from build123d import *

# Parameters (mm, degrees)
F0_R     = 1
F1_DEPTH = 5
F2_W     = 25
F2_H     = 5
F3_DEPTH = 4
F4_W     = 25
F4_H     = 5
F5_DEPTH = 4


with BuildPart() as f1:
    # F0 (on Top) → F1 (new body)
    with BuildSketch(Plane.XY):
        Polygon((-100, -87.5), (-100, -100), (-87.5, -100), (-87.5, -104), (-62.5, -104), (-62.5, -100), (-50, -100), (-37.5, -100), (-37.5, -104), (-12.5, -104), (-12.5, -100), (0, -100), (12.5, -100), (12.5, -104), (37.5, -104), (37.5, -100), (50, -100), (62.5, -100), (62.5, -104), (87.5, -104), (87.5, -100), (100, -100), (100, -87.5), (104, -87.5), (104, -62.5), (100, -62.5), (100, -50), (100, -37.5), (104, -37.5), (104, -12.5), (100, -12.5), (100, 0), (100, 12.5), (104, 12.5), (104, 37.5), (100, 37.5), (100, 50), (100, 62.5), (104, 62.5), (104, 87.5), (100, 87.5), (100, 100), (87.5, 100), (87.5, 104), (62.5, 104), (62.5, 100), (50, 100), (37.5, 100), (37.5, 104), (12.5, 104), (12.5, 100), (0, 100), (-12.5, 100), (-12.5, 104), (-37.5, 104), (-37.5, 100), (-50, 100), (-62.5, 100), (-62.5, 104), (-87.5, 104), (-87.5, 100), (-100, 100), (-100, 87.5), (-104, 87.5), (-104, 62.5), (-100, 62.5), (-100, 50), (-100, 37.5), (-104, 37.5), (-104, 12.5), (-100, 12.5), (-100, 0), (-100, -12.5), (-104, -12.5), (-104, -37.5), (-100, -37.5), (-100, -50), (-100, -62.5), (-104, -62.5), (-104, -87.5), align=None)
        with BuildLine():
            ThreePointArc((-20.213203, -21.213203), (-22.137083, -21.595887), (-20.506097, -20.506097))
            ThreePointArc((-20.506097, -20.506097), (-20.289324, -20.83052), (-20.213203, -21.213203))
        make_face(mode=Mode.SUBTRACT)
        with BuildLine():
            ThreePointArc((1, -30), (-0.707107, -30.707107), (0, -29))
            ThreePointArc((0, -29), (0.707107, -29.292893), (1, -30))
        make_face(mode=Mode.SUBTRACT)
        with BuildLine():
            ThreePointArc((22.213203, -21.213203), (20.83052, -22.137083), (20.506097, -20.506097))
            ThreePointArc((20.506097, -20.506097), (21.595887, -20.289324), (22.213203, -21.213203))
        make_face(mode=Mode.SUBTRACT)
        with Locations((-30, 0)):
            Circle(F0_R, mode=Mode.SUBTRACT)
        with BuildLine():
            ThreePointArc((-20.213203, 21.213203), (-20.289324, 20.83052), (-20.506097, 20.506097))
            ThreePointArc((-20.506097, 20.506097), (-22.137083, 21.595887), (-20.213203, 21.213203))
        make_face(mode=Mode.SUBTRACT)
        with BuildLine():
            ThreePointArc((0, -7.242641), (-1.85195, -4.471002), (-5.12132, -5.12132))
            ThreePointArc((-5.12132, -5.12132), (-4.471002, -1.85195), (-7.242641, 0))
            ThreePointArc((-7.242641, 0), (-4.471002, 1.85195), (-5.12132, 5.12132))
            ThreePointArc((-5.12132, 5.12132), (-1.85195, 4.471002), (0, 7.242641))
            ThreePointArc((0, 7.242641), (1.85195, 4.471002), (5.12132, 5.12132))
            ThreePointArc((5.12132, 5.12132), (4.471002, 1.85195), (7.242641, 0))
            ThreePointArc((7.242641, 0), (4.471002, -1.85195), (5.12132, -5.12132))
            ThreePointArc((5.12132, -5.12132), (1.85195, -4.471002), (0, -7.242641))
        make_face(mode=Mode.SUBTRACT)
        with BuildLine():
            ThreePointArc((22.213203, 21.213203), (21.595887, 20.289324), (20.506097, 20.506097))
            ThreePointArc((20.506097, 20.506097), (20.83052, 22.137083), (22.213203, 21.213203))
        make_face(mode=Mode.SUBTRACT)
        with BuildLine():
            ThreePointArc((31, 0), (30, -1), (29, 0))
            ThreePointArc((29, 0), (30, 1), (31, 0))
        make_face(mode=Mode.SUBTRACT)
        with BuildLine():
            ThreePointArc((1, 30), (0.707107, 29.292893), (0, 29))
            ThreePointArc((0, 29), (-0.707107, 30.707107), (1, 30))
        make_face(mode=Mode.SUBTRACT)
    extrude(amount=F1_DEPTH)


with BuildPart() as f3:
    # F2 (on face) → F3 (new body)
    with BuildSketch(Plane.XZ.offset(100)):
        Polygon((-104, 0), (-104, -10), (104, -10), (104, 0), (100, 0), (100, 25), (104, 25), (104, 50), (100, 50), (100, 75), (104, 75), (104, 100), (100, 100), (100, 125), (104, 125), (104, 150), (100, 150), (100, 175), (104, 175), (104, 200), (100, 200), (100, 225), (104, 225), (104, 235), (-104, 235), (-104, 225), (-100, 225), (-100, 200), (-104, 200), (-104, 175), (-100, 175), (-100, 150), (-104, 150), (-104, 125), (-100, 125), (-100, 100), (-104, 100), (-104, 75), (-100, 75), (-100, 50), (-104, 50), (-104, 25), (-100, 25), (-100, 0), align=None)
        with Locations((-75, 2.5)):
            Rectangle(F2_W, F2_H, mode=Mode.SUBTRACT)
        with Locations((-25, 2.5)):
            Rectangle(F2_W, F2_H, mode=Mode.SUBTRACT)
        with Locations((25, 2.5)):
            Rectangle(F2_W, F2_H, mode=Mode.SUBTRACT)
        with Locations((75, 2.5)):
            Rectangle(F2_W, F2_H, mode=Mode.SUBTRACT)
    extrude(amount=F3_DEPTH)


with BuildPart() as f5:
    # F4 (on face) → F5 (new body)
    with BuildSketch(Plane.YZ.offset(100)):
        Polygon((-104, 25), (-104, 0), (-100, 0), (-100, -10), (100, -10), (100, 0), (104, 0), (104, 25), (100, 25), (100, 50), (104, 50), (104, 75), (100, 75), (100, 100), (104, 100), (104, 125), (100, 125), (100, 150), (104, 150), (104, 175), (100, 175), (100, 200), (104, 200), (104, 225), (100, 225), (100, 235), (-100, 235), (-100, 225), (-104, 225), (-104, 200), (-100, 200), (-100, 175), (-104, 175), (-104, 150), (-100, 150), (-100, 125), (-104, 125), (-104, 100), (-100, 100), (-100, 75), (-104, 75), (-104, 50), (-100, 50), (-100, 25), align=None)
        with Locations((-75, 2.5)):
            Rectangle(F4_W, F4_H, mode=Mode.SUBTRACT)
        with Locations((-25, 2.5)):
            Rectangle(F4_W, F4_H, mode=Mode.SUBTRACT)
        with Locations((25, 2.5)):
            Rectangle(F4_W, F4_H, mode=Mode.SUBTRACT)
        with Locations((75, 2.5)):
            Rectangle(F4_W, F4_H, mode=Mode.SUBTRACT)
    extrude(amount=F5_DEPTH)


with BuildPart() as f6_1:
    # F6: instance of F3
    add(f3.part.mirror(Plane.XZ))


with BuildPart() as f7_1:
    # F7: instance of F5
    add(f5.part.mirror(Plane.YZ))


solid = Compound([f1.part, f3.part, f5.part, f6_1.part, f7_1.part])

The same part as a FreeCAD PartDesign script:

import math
import FreeCAD as App
import Part
import Sketcher

V = App.Vector
Q = App.Units.Quantity


def add_polygon(sketch, points):
    """Adds a closed chain of lines whose ends are joined by coincident constraints."""
    first, n = sketch.GeometryCount, len(points)
    for a, b in zip(points, points[1:] + points[:1]):
        sketch.addGeometry(Part.LineSegment(App.Vector(*a, 0), App.Vector(*b, 0)), False)
    for i in range(n):
        sketch.addConstraint(Sketcher.Constraint("Coincident", first + i, 2, first + (i + 1) % n, 1))

doc = App.newDocument("Part")
body = doc.addObject("PartDesign::Body", "Body")

sketch1 = body.newObject("Sketcher::SketchObject", "Sketch")
sketch1.AttachmentSupport = (doc.getObject("XY_Plane"), [""])
sketch1.MapMode = "FlatFace"
add_polygon(sketch1, [(-100, -87.5), (-100, -100), (-87.5, -100), (-87.5, -104), (-62.5, -104), (-62.5, -100), (-37.5, -100), (-37.5, -104), (-12.5, -104), (-12.5, -100), (12.5, -100), (12.5, -104), (37.5, -104), (37.5, -100), (62.5, -100), (62.5, -104), (87.5, -104), (87.5, -100), (100, -100), (100, -87.5), (104, -87.5), (104, -62.5), (100, -62.5), (100, -37.5), (104, -37.5), (104, -12.5), (100, -12.5), (100, 12.5), (104, 12.5), (104, 37.5), (100, 37.5), (100, 62.5), (104, 62.5), (104, 87.5), (100, 87.5), (100, 100), (87.5, 100), (87.5, 104), (62.5, 104), (62.5, 100), (37.5, 100), (37.5, 104), (12.5, 104), (12.5, 100), (-12.5, 100), (-12.5, 104), (-37.5, 104), (-37.5, 100), (-62.5, 100), (-62.5, 104), (-87.5, 104), (-87.5, 100), (-100, 100), (-100, 87.5), (-104, 87.5), (-104, 62.5), (-100, 62.5), (-100, 37.5), (-104, 37.5), (-104, 12.5), (-100, 12.5), (-100, -12.5), (-104, -12.5), (-104, -37.5), (-100, -37.5), (-100, -62.5), (-104, -62.5), (-104, -87.5)])
sketch1.addGeometry(Part.ArcOfCircle(Part.Circle(V(-21.213204, -21.213205, 0), V(0, 0, 1), 1.000001), math.radians(0.000107), math.radians(45.000046)), False)
sketch1.addGeometry(Part.ArcOfCircle(Part.Circle(V(-21.213203, -21.213205, 0), V(0, 0, 1), 1), math.radians(45.000063), math.radians(360.00009)), False)
sketch1.addGeometry(Part.ArcOfCircle(Part.Circle(V(0.000001, -29.999999, 0), V(0, 0, 1), 0.999999), math.radians(-0.000043), math.radians(90.000043)), False)
sketch1.addGeometry(Part.ArcOfCircle(Part.Circle(V(0, -30, 0), V(0, 0, 1), 1), math.radians(89.999993), math.radians(360.000007)), False)
sketch1.addGeometry(Part.ArcOfCircle(Part.Circle(V(21.213204, -21.213203, 0), V(0, 0, 1), 0.999999), math.radians(-0.000011), math.radians(135.000037)), False)
sketch1.addGeometry(Part.ArcOfCircle(Part.Circle(V(21.213203, -21.213204, 0), V(0, 0, 1), 1), math.radians(134.999982), math.radians(360.000044)), False)
sketch1.addGeometry(Part.Circle(V(-30, 0, 0), V(0, 0, 1), 1), False)
sketch1.addGeometry(Part.ArcOfCircle(Part.Circle(V(-21.213203, 21.213205, 0), V(0, 0, 1), 1), math.radians(-0.00009), math.radians(314.999937)), False)
sketch1.addGeometry(Part.ArcOfCircle(Part.Circle(V(-21.213204, 21.213205, 0), V(0, 0, 1), 1.000001), math.radians(-45.000046), math.radians(-0.000107)), False)
sketch1.addGeometry(Part.ArcOfCircle(Part.Circle(V(0, 30, 0), V(0, 0, 1), 1), math.radians(-0.000007), math.radians(270.000007)), False)
sketch1.addGeometry(Part.ArcOfCircle(Part.Circle(V(0.000001, 29.999999, 0), V(0, 0, 1), 0.999999), math.radians(-90.000043), math.radians(0.000043)), False)
sketch1.addGeometry(Part.ArcOfCircle(Part.Circle(V(3, -7.242641, 0), V(0, 0, 1), 3), math.radians(45.00001), math.radians(180.000005)), False)
sketch1.addGeometry(Part.ArcOfCircle(Part.Circle(V(-3, -7.242641, 0), V(0, 0, 1), 3), math.radians(-0.000005), math.radians(134.99999)), False)
sketch1.addGeometry(Part.ArcOfCircle(Part.Circle(V(-7.242641, -3, 0), V(0, 0, 1), 3), math.radians(-44.99999), math.radians(90.000005)), False)
sketch1.addGeometry(Part.ArcOfCircle(Part.Circle(V(-7.242641, 3, 0), V(0, 0, 1), 3), math.radians(-90.000005), math.radians(44.99999)), False)
sketch1.addGeometry(Part.ArcOfCircle(Part.Circle(V(-3, 7.242641, 0), V(0, 0, 1), 3), math.radians(-134.99999), math.radians(0.000005)), False)
sketch1.addGeometry(Part.ArcOfCircle(Part.Circle(V(3, 7.242641, 0), V(0, 0, 1), 3), math.radians(179.999995), math.radians(314.99999)), False)
sketch1.addGeometry(Part.ArcOfCircle(Part.Circle(V(7.242641, 3, 0), V(0, 0, 1), 3), math.radians(135.00001), math.radians(270.000005)), False)
sketch1.addGeometry(Part.ArcOfCircle(Part.Circle(V(7.242641, -3, 0), V(0, 0, 1), 3), math.radians(89.999995), math.radians(224.99999)), False)
sketch1.addGeometry(Part.Circle(V(30, 0, 0), V(0, 0, 1), 1), False)
sketch1.addGeometry(Part.ArcOfCircle(Part.Circle(V(21.213203, 21.213204, 0), V(0, 0, 1), 1), math.radians(-0.000044), math.radians(225.000018)), False)
sketch1.addGeometry(Part.ArcOfCircle(Part.Circle(V(21.213204, 21.213203, 0), V(0, 0, 1), 0.999999), math.radians(-135.000037), math.radians(0.000011)), False)
sketch1.addConstraint(Sketcher.Constraint("Tangent", 68, 1, 69, 2))
sketch1.addConstraint(Sketcher.Constraint("Coincident", 69, 1, 68, 2))
sketch1.addConstraint(Sketcher.Constraint("Tangent", 70, 1, 71, 2))
sketch1.addConstraint(Sketcher.Constraint("Coincident", 71, 1, 70, 2))
sketch1.addConstraint(Sketcher.Constraint("Tangent", 72, 1, 73, 2))
sketch1.addConstraint(Sketcher.Constraint("Coincident", 73, 1, 72, 2))
sketch1.addConstraint(Sketcher.Constraint("Tangent", 75, 1, 76, 2))
sketch1.addConstraint(Sketcher.Constraint("Coincident", 76, 1, 75, 2))
sketch1.addConstraint(Sketcher.Constraint("Tangent", 77, 1, 78, 2))
sketch1.addConstraint(Sketcher.Constraint("Coincident", 78, 1, 77, 2))
sketch1.addConstraint(Sketcher.Constraint("Tangent", 79, 2, 80, 1))
sketch1.addConstraint(Sketcher.Constraint("Tangent", 80, 2, 81, 1))
sketch1.addConstraint(Sketcher.Constraint("Tangent", 81, 2, 82, 1))
sketch1.addConstraint(Sketcher.Constraint("Tangent", 82, 2, 83, 1))
sketch1.addConstraint(Sketcher.Constraint("Tangent", 83, 2, 84, 1))
sketch1.addConstraint(Sketcher.Constraint("Tangent", 84, 2, 85, 1))
sketch1.addConstraint(Sketcher.Constraint("Tangent", 85, 2, 86, 1))
sketch1.addConstraint(Sketcher.Constraint("Tangent", 86, 2, 79, 1))
sketch1.addConstraint(Sketcher.Constraint("Tangent", 88, 1, 89, 2))
sketch1.addConstraint(Sketcher.Constraint("Coincident", 89, 1, 88, 2))
sketch1.addConstraint(Sketcher.Constraint("Vertical", 0))
sketch1.addConstraint(Sketcher.Constraint("Horizontal", 1))
sketch1.addConstraint(Sketcher.Constraint("Vertical", 2))
sketch1.addConstraint(Sketcher.Constraint("Horizontal", 3))
sketch1.addConstraint(Sketcher.Constraint("Vertical", 4))
sketch1.addConstraint(Sketcher.Constraint("Horizontal", 5))
sketch1.addConstraint(Sketcher.Constraint("Vertical", 6))
sketch1.addConstraint(Sketcher.Constraint("Horizontal", 7))
sketch1.addConstraint(Sketcher.Constraint("Vertical", 8))
sketch1.addConstraint(Sketcher.Constraint("Horizontal", 9))
sketch1.addConstraint(Sketcher.Constraint("Vertical", 10))
sketch1.addConstraint(Sketcher.Constraint("Horizontal", 11))
sketch1.addConstraint(Sketcher.Constraint("Vertical", 12))
sketch1.addConstraint(Sketcher.Constraint("Horizontal", 13))
sketch1.addConstraint(Sketcher.Constraint("Vertical", 14))
sketch1.addConstraint(Sketcher.Constraint("Horizontal", 15))
sketch1.addConstraint(Sketcher.Constraint("Vertical", 16))
sketch1.addConstraint(Sketcher.Constraint("Horizontal", 17))
sketch1.addConstraint(Sketcher.Constraint("Vertical", 18))
sketch1.addConstraint(Sketcher.Constraint("Horizontal", 19))
sketch1.addConstraint(Sketcher.Constraint("Vertical", 20))
sketch1.addConstraint(Sketcher.Constraint("Horizontal", 21))
sketch1.addConstraint(Sketcher.Constraint("Vertical", 22))
sketch1.addConstraint(Sketcher.Constraint("Horizontal", 23))
sketch1.addConstraint(Sketcher.Constraint("Vertical", 24))
sketch1.addConstraint(Sketcher.Constraint("Horizontal", 25))
sketch1.addConstraint(Sketcher.Constraint("Vertical", 26))
sketch1.addConstraint(Sketcher.Constraint("Horizontal", 27))
sketch1.addConstraint(Sketcher.Constraint("Vertical", 28))
sketch1.addConstraint(Sketcher.Constraint("Horizontal", 29))
sketch1.addConstraint(Sketcher.Constraint("Vertical", 30))
sketch1.addConstraint(Sketcher.Constraint("Horizontal", 31))
sketch1.addConstraint(Sketcher.Constraint("Vertical", 32))
sketch1.addConstraint(Sketcher.Constraint("Horizontal", 33))
sketch1.addConstraint(Sketcher.Constraint("Vertical", 34))
sketch1.addConstraint(Sketcher.Constraint("Horizontal", 35))
sketch1.addConstraint(Sketcher.Constraint("Vertical", 36))
sketch1.addConstraint(Sketcher.Constraint("Horizontal", 37))
sketch1.addConstraint(Sketcher.Constraint("Vertical", 38))
sketch1.addConstraint(Sketcher.Constraint("Horizontal", 39))
sketch1.addConstraint(Sketcher.Constraint("Vertical", 40))
sketch1.addConstraint(Sketcher.Constraint("Horizontal", 41))
sketch1.addConstraint(Sketcher.Constraint("Vertical", 42))
sketch1.addConstraint(Sketcher.Constraint("Horizontal", 43))
sketch1.addConstraint(Sketcher.Constraint("Vertical", 44))
sketch1.addConstraint(Sketcher.Constraint("Horizontal", 45))
sketch1.addConstraint(Sketcher.Constraint("Vertical", 46))
sketch1.addConstraint(Sketcher.Constraint("Horizontal", 47))
sketch1.addConstraint(Sketcher.Constraint("Vertical", 48))
sketch1.addConstraint(Sketcher.Constraint("Horizontal", 49))
sketch1.addConstraint(Sketcher.Constraint("Vertical", 50))
sketch1.addConstraint(Sketcher.Constraint("Horizontal", 51))
sketch1.addConstraint(Sketcher.Constraint("Vertical", 52))
sketch1.addConstraint(Sketcher.Constraint("Horizontal", 53))
sketch1.addConstraint(Sketcher.Constraint("Vertical", 54))
sketch1.addConstraint(Sketcher.Constraint("Horizontal", 55))
sketch1.addConstraint(Sketcher.Constraint("Vertical", 56))
sketch1.addConstraint(Sketcher.Constraint("Horizontal", 57))
sketch1.addConstraint(Sketcher.Constraint("Vertical", 58))
sketch1.addConstraint(Sketcher.Constraint("Horizontal", 59))
sketch1.addConstraint(Sketcher.Constraint("Vertical", 60))
sketch1.addConstraint(Sketcher.Constraint("Horizontal", 61))
sketch1.addConstraint(Sketcher.Constraint("Vertical", 62))
sketch1.addConstraint(Sketcher.Constraint("Horizontal", 63))
sketch1.addConstraint(Sketcher.Constraint("Vertical", 64))
sketch1.addConstraint(Sketcher.Constraint("Horizontal", 65))
sketch1.addConstraint(Sketcher.Constraint("Vertical", 66))
sketch1.addConstraint(Sketcher.Constraint("Horizontal", 67))
sketch1.addConstraint(Sketcher.Constraint("Equal", 69, 70))
sketch1.addConstraint(Sketcher.Constraint("Equal", 71, 72))
sketch1.addConstraint(Sketcher.Constraint("Equal", 73, 74))
sketch1.addConstraint(Sketcher.Constraint("Equal", 74, 75))
sketch1.addConstraint(Sketcher.Constraint("Equal", 76, 77))
sketch1.addConstraint(Sketcher.Constraint("Equal", 79, 80))
sketch1.addConstraint(Sketcher.Constraint("Equal", 80, 81))
sketch1.addConstraint(Sketcher.Constraint("Equal", 81, 82))
sketch1.addConstraint(Sketcher.Constraint("Equal", 82, 83))
sketch1.addConstraint(Sketcher.Constraint("Equal", 83, 84))
sketch1.addConstraint(Sketcher.Constraint("Equal", 84, 85))
sketch1.addConstraint(Sketcher.Constraint("Equal", 85, 86))
sketch1.addConstraint(Sketcher.Constraint("Equal", 78, 87))
sketch1.addConstraint(Sketcher.Constraint("Equal", 87, 88))
sketch1.addConstraint(Sketcher.Constraint("Symmetric", 72, 3, 75, 3, -1, 1))
sketch1.addConstraint(Sketcher.Constraint("Symmetric", 70, 3, 77, 3, -1, 1))
sketch1.addConstraint(Sketcher.Constraint("Symmetric", 79, 3, 83, 3, -1, 1))
sketch1.addConstraint(Sketcher.Constraint("Symmetric", 81, 3, 85, 3, -1, 1))
sketch1.addConstraint(Sketcher.Constraint("Symmetric", 74, 3, 87, 3, -1, 1))
sketch1.addConstraint(Sketcher.Constraint("Symmetric", 68, 3, 88, 3, -1, 1))
sketch1.addConstraint(Sketcher.Constraint("Symmetric", 0, 2, 34, 2, -1, 1))
sketch1.addConstraint(Sketcher.Constraint("Symmetric", 2, 2, 36, 2, -1, 1))
sketch1.addConstraint(Sketcher.Constraint("Symmetric", 4, 2, 38, 2, -1, 1))
sketch1.addConstraint(Sketcher.Constraint("Symmetric", 6, 2, 40, 2, -1, 1))
sketch1.addConstraint(Sketcher.Constraint("Symmetric", 8, 2, 42, 2, -1, 1))
sketch1.addConstraint(Sketcher.Constraint("Symmetric", 10, 2, 44, 2, -1, 1))
sketch1.addConstraint(Sketcher.Constraint("Symmetric", 12, 2, 46, 2, -1, 1))
sketch1.addConstraint(Sketcher.Constraint("Symmetric", 14, 2, 48, 2, -1, 1))
sketch1.addConstraint(Sketcher.Constraint("Symmetric", 16, 2, 50, 2, -1, 1))
sketch1.addConstraint(Sketcher.Constraint("Symmetric", 18, 2, 52, 2, -1, 1))
sketch1.addConstraint(Sketcher.Constraint("Symmetric", 20, 2, 54, 2, -1, 1))
sketch1.addConstraint(Sketcher.Constraint("Symmetric", 22, 2, 56, 2, -1, 1))
sketch1.addConstraint(Sketcher.Constraint("Symmetric", 24, 2, 58, 2, -1, 1))
sketch1.addConstraint(Sketcher.Constraint("Symmetric", 26, 2, 60, 2, -1, 1))
sketch1.addConstraint(Sketcher.Constraint("Symmetric", 28, 2, 62, 2, -1, 1))
sketch1.addConstraint(Sketcher.Constraint("Symmetric", 30, 2, 64, 2, -1, 1))
sketch1.addConstraint(Sketcher.Constraint("Symmetric", 32, 2, 66, 2, -1, 1))
sketch1.addConstraint(Sketcher.Constraint("Symmetric", 68, 3, 72, 3, -2))
sketch1.addConstraint(Sketcher.Constraint("Symmetric", 79, 3, 80, 3, -2))
sketch1.addConstraint(Sketcher.Constraint("Symmetric", 7, 2, 10, 2, -2))
sketch1.addConstraint(Sketcher.Constraint("Symmetric", 5, 2, 12, 2, -2))
sketch1.addConstraint(Sketcher.Constraint("Symmetric", 3, 2, 14, 2, -2))
sketch1.addConstraint(Sketcher.Constraint("Symmetric", 1, 2, 16, 2, -2))
sketch1.addConstraint(Sketcher.Constraint("Symmetric", 33, 2, 52, 2, -2))
sketch1.addConstraint(Sketcher.Constraint("Symmetric", 31, 2, 54, 2, -2))
sketch1.addConstraint(Sketcher.Constraint("Symmetric", 29, 2, 56, 2, -2))
sketch1.addConstraint(Sketcher.Constraint("Symmetric", 27, 2, 58, 2, -2))
sketch1.addConstraint(Sketcher.Constraint("Symmetric", 70, 1, 77, 1, -1))
sketch1.addConstraint(Sketcher.Constraint("PointOnObject", 74, 3, -1))
sketch1.addConstraint(Sketcher.Constraint("PointOnObject", 71, 1, -2))
sketch1.addConstraint(Sketcher.Constraint("PointOnObject", 78, 1, -2))
sketch1.addConstraint(Sketcher.Constraint("PointOnObject", 81, 2, -1))
sketch1.addConstraint(Sketcher.Constraint("Horizontal", 1, 2, 4, 2))
sketch1.addConstraint(Sketcher.Constraint("Horizontal", 3, 2, 6, 2))
sketch1.addConstraint(Sketcher.Constraint("Horizontal", 5, 2, 8, 2))
sketch1.addConstraint(Sketcher.Constraint("Horizontal", 73, 3, 68, 1))
sketch1.addConstraint(Sketcher.Constraint("Horizontal", 71, 3, 70, 1))
sketch1.addConstraint(Sketcher.Constraint("Horizontal", 68, 1, 72, 1))
sketch1.addConstraint(Sketcher.Constraint("Horizontal", 69, 1, 73, 1))
sketch1.addConstraint(Sketcher.Constraint("Horizontal", 89, 3, 75, 1))
sketch1.addConstraint(Sketcher.Constraint("Horizontal", 75, 1, 88, 1))
sketch1.addConstraint(Sketcher.Constraint("Horizontal", 76, 1, 89, 1))
sketch1.addConstraint(Sketcher.Constraint("Vertical", 18, 2, 21, 2))
sketch1.addConstraint(Sketcher.Constraint("Vertical", 20, 2, 23, 2))
sketch1.addConstraint(Sketcher.Constraint("Vertical", 22, 2, 25, 2))
sketch1.addConstraint(Sketcher.Constraint("Vertical", 69, 1, 76, 1))
sketch1.addConstraint(Sketcher.Constraint("Equal", 3, 5))
sketch1.addConstraint(Sketcher.Constraint("Equal", 5, 7))
sketch1.addConstraint(Sketcher.Constraint("Equal", 7, 9))
sketch1.addConstraint(Sketcher.Constraint("Equal", 51, 0))
sketch1.addConstraint(Sketcher.Constraint("Equal", 67, 2))
sketch1.addConstraint(Sketcher.Constraint("Equal", 49, 20))
sketch1.addConstraint(Sketcher.Constraint("Equal", 20, 22))
sketch1.addConstraint(Sketcher.Constraint("Equal", 22, 24))
sketch1.addConstraint(Sketcher.Constraint("Equal", 24, 26))
sketch1.addConstraint(Sketcher.Constraint("Diameter", 74, Q("2 mm")))
sketch1.addConstraint(Sketcher.Constraint("Radius", 79, Q("3 mm")))
sketch1.addConstraint(Sketcher.Constraint("DistanceX", 3, 1, 3, 2, Q("25 mm")))
sketch1.addConstraint(Sketcher.Constraint("DistanceX", 19, 1, 19, 2, Q("4 mm")))
sketch1.addConstraint(Sketcher.Constraint("DistanceX", 1, 1, 1, 2, Q("12.5 mm")))
sketch1.addConstraint(Sketcher.Constraint("DistanceY", 70, 3, -1, 1, Q("29.999999 mm")))
sketch1.addConstraint(Sketcher.Constraint("DistanceX", 74, 3, -1, 1, Q("30 mm")))
sketch1.addConstraint(Sketcher.Constraint("DistanceY", 79, 3, -1, 1, Q("7.242641 mm")))
sketch1.addConstraint(Sketcher.Constraint("DistanceX", 68, 3, -1, 1, Q("21.213204 mm")))
sketch1.addConstraint(Sketcher.Constraint("DistanceY", 68, 3, -1, 1, Q("21.213205 mm")))
sketch1.addConstraint(Sketcher.Constraint("DistanceX", 69, 1, -1, 1, Q("20.506097 mm")))
pad1 = body.newObject("PartDesign::Pad", "Pad")
pad1.Profile = sketch1
pad1.Length = 5
body2 = doc.addObject("PartDesign::Body", "Body001")

sketch2 = body2.newObject("Sketcher::SketchObject", "Sketch001")
sketch2.AttachmentSupport = (doc.getObject("XZ_Plane001"), [""])
sketch2.MapMode = "FlatFace"
sketch2.AttachmentOffset = App.Placement(V(0, 0, 100), App.Rotation())
add_polygon(sketch2, [(-104, 0), (-104, -10), (104, -10), (104, 0), (100, 0), (100, 25), (104, 25), (104, 50), (100, 50), (100, 75), (104, 75), (104, 100), (100, 100), (100, 125), (104, 125), (104, 150), (100, 150), (100, 175), (104, 175), (104, 200), (100, 200), (100, 225), (104, 225), (104, 235), (-104, 235), (-104, 225), (-100, 225), (-100, 200), (-104, 200), (-104, 175), (-100, 175), (-100, 150), (-104, 150), (-104, 125), (-100, 125), (-100, 100), (-104, 100), (-104, 75), (-100, 75), (-100, 50), (-104, 50), (-104, 25), (-100, 25), (-100, 0)])
add_polygon(sketch2, [(-62.5, 0), (-87.5, 0), (-87.5, 5), (-62.5, 5)])
add_polygon(sketch2, [(-12.5, 0), (-37.5, 0), (-37.5, 5), (-12.5, 5)])
add_polygon(sketch2, [(37.5, 0), (12.5, 0), (12.5, 5), (37.5, 5)])
add_polygon(sketch2, [(87.5, 0), (62.5, 0), (62.5, 5), (87.5, 5)])
sketch2.addConstraint(Sketcher.Constraint("Vertical", 0))
sketch2.addConstraint(Sketcher.Constraint("Horizontal", 1))
sketch2.addConstraint(Sketcher.Constraint("Vertical", 2))
sketch2.addConstraint(Sketcher.Constraint("Horizontal", 3))
sketch2.addConstraint(Sketcher.Constraint("Vertical", 4))
sketch2.addConstraint(Sketcher.Constraint("Horizontal", 5))
sketch2.addConstraint(Sketcher.Constraint("Vertical", 6))
sketch2.addConstraint(Sketcher.Constraint("Horizontal", 7))
sketch2.addConstraint(Sketcher.Constraint("Vertical", 8))
sketch2.addConstraint(Sketcher.Constraint("Horizontal", 9))
sketch2.addConstraint(Sketcher.Constraint("Vertical", 10))
sketch2.addConstraint(Sketcher.Constraint("Horizontal", 11))
sketch2.addConstraint(Sketcher.Constraint("Vertical", 12))
sketch2.addConstraint(Sketcher.Constraint("Horizontal", 13))
sketch2.addConstraint(Sketcher.Constraint("Vertical", 14))
sketch2.addConstraint(Sketcher.Constraint("Horizontal", 15))
sketch2.addConstraint(Sketcher.Constraint("Vertical", 16))
sketch2.addConstraint(Sketcher.Constraint("Horizontal", 17))
sketch2.addConstraint(Sketcher.Constraint("Vertical", 18))
sketch2.addConstraint(Sketcher.Constraint("Horizontal", 19))
sketch2.addConstraint(Sketcher.Constraint("Vertical", 20))
sketch2.addConstraint(Sketcher.Constraint("Horizontal", 21))
sketch2.addConstraint(Sketcher.Constraint("Vertical", 22))
sketch2.addConstraint(Sketcher.Constraint("Horizontal", 23))
sketch2.addConstraint(Sketcher.Constraint("Vertical", 24))
sketch2.addConstraint(Sketcher.Constraint("Horizontal", 25))
sketch2.addConstraint(Sketcher.Constraint("Vertical", 26))
sketch2.addConstraint(Sketcher.Constraint("Horizontal", 27))
sketch2.addConstraint(Sketcher.Constraint("Vertical", 28))
sketch2.addConstraint(Sketcher.Constraint("Horizontal", 29))
sketch2.addConstraint(Sketcher.Constraint("Vertical", 30))
sketch2.addConstraint(Sketcher.Constraint("Horizontal", 31))
sketch2.addConstraint(Sketcher.Constraint("Vertical", 32))
sketch2.addConstraint(Sketcher.Constraint("Horizontal", 33))
sketch2.addConstraint(Sketcher.Constraint("Vertical", 34))
sketch2.addConstraint(Sketcher.Constraint("Horizontal", 35))
sketch2.addConstraint(Sketcher.Constraint("Vertical", 36))
sketch2.addConstraint(Sketcher.Constraint("Horizontal", 37))
sketch2.addConstraint(Sketcher.Constraint("Vertical", 38))
sketch2.addConstraint(Sketcher.Constraint("Horizontal", 39))
sketch2.addConstraint(Sketcher.Constraint("Vertical", 40))
sketch2.addConstraint(Sketcher.Constraint("Horizontal", 41))
sketch2.addConstraint(Sketcher.Constraint("Vertical", 42))
sketch2.addConstraint(Sketcher.Constraint("Horizontal", 43))
sketch2.addConstraint(Sketcher.Constraint("Horizontal", 44))
sketch2.addConstraint(Sketcher.Constraint("Vertical", 45))
sketch2.addConstraint(Sketcher.Constraint("Horizontal", 46))
sketch2.addConstraint(Sketcher.Constraint("Vertical", 47))
sketch2.addConstraint(Sketcher.Constraint("Horizontal", 48))
sketch2.addConstraint(Sketcher.Constraint("Vertical", 49))
sketch2.addConstraint(Sketcher.Constraint("Horizontal", 50))
sketch2.addConstraint(Sketcher.Constraint("Vertical", 51))
sketch2.addConstraint(Sketcher.Constraint("Horizontal", 52))
sketch2.addConstraint(Sketcher.Constraint("Vertical", 53))
sketch2.addConstraint(Sketcher.Constraint("Horizontal", 54))
sketch2.addConstraint(Sketcher.Constraint("Vertical", 55))
sketch2.addConstraint(Sketcher.Constraint("Horizontal", 56))
sketch2.addConstraint(Sketcher.Constraint("Vertical", 57))
sketch2.addConstraint(Sketcher.Constraint("Horizontal", 58))
sketch2.addConstraint(Sketcher.Constraint("Vertical", 59))
sketch2.addConstraint(Sketcher.Constraint("Symmetric", 3, 2, 42, 2, -1, 1))
sketch2.addConstraint(Sketcher.Constraint("Symmetric", 51, 2, 52, 2, -1, 1))
sketch2.addConstraint(Sketcher.Constraint("Symmetric", 47, 2, 56, 2, -1, 1))
sketch2.addConstraint(Sketcher.Constraint("Symmetric", 21, 2, 24, 2, -2))
sketch2.addConstraint(Sketcher.Constraint("Symmetric", 19, 2, 26, 2, -2))
sketch2.addConstraint(Sketcher.Constraint("Symmetric", 17, 2, 28, 2, -2))
sketch2.addConstraint(Sketcher.Constraint("Symmetric", 15, 2, 30, 2, -2))
sketch2.addConstraint(Sketcher.Constraint("Symmetric", 13, 2, 32, 2, -2))
sketch2.addConstraint(Sketcher.Constraint("Symmetric", 11, 2, 34, 2, -2))
sketch2.addConstraint(Sketcher.Constraint("Symmetric", 9, 2, 36, 2, -2))
sketch2.addConstraint(Sketcher.Constraint("Symmetric", 7, 2, 38, 2, -2))
sketch2.addConstraint(Sketcher.Constraint("Symmetric", 5, 2, 40, 2, -2))
sketch2.addConstraint(Sketcher.Constraint("Symmetric", 2, 2, 43, 2, -2))
sketch2.addConstraint(Sketcher.Constraint("Symmetric", 49, 2, 54, 2, -2))
sketch2.addConstraint(Sketcher.Constraint("Symmetric", 45, 2, 58, 2, -2))
sketch2.addConstraint(Sketcher.Constraint("PointOnObject", 44, 2, -1))
sketch2.addConstraint(Sketcher.Constraint("PointOnObject", 48, 2, -1))
sketch2.addConstraint(Sketcher.Constraint("Horizontal", 46, 2, 49, 2))
sketch2.addConstraint(Sketcher.Constraint("Vertical", 2, 2, 5, 2))
sketch2.addConstraint(Sketcher.Constraint("Vertical", 4, 2, 7, 2))
sketch2.addConstraint(Sketcher.Constraint("Vertical", 6, 2, 9, 2))
sketch2.addConstraint(Sketcher.Constraint("Vertical", 8, 2, 11, 2))
sketch2.addConstraint(Sketcher.Constraint("Vertical", 10, 2, 13, 2))
sketch2.addConstraint(Sketcher.Constraint("Vertical", 12, 2, 15, 2))
sketch2.addConstraint(Sketcher.Constraint("Vertical", 14, 2, 17, 2))
sketch2.addConstraint(Sketcher.Constraint("Vertical", 16, 2, 19, 2))
sketch2.addConstraint(Sketcher.Constraint("Vertical", 18, 2, 21, 2))
sketch2.addConstraint(Sketcher.Constraint("Equal", 46, 48))
sketch2.addConstraint(Sketcher.Constraint("Equal", 58, 4))
sketch2.addConstraint(Sketcher.Constraint("Equal", 4, 6))
sketch2.addConstraint(Sketcher.Constraint("Equal", 6, 8))
sketch2.addConstraint(Sketcher.Constraint("Equal", 8, 10))
sketch2.addConstraint(Sketcher.Constraint("Equal", 10, 12))
sketch2.addConstraint(Sketcher.Constraint("Equal", 12, 14))
sketch2.addConstraint(Sketcher.Constraint("Equal", 14, 16))
sketch2.addConstraint(Sketcher.Constraint("Equal", 16, 18))
sketch2.addConstraint(Sketcher.Constraint("Equal", 18, 20))
sketch2.addConstraint(Sketcher.Constraint("Equal", 2, 22))
sketch2.addConstraint(Sketcher.Constraint("DistanceX", 1, 1, 1, 2, Q("208 mm")))
sketch2.addConstraint(Sketcher.Constraint("DistanceX", 3, 2, 3, 1, Q("4 mm")))
sketch2.addConstraint(Sketcher.Constraint("DistanceX", 44, 2, 44, 1, Q("25 mm")))
sketch2.addConstraint(Sketcher.Constraint("DistanceY", 0, 2, 0, 1, Q("10 mm")))
sketch2.addConstraint(Sketcher.Constraint("DistanceY", 45, 1, 45, 2, Q("5 mm")))
sketch2.addConstraint(Sketcher.Constraint("DistanceX", 47, 2, 48, 2, Q("25 mm")))
sketch2.addConstraint(Sketcher.Constraint("DistanceX", 51, 2, 52, 2, Q("25 mm")))
pad2 = body2.newObject("PartDesign::Pad", "Pad001")
pad2.Profile = sketch2
pad2.Length = 4
body3 = doc.addObject("PartDesign::Body", "Body002")

sketch3 = body3.newObject("Sketcher::SketchObject", "Sketch002")
sketch3.AttachmentSupport = (doc.getObject("YZ_Plane002"), [""])
sketch3.MapMode = "FlatFace"
sketch3.AttachmentOffset = App.Placement(V(0, 0, 100), App.Rotation())
add_polygon(sketch3, [(-104, 25), (-104, 0), (-100, 0), (-100, -10), (100, -10), (100, 0), (104, 0), (104, 25), (100, 25), (100, 50), (104, 50), (104, 75), (100, 75), (100, 100), (104, 100), (104, 125), (100, 125), (100, 150), (104, 150), (104, 175), (100, 175), (100, 200), (104, 200), (104, 225), (100, 225), (100, 235), (-100, 235), (-100, 225), (-104, 225), (-104, 200), (-100, 200), (-100, 175), (-104, 175), (-104, 150), (-100, 150), (-100, 125), (-104, 125), (-104, 100), (-100, 100), (-100, 75), (-104, 75), (-104, 50), (-100, 50), (-100, 25)])
add_polygon(sketch3, [(-62.5, 0), (-87.5, 0), (-87.5, 5), (-62.5, 5)])
add_polygon(sketch3, [(-12.5, 0), (-37.5, 0), (-37.5, 5), (-12.5, 5)])
add_polygon(sketch3, [(37.5, 0), (12.5, 0), (12.5, 5), (37.5, 5)])
add_polygon(sketch3, [(87.5, 0), (62.5, 0), (62.5, 5), (87.5, 5)])
sketch3.addConstraint(Sketcher.Constraint("Vertical", 0))
sketch3.addConstraint(Sketcher.Constraint("Horizontal", 1))
sketch3.addConstraint(Sketcher.Constraint("Vertical", 2))
sketch3.addConstraint(Sketcher.Constraint("Horizontal", 3))
sketch3.addConstraint(Sketcher.Constraint("Vertical", 4))
sketch3.addConstraint(Sketcher.Constraint("Horizontal", 5))
sketch3.addConstraint(Sketcher.Constraint("Vertical", 6))
sketch3.addConstraint(Sketcher.Constraint("Horizontal", 7))
sketch3.addConstraint(Sketcher.Constraint("Vertical", 8))
sketch3.addConstraint(Sketcher.Constraint("Horizontal", 9))
sketch3.addConstraint(Sketcher.Constraint("Vertical", 10))
sketch3.addConstraint(Sketcher.Constraint("Horizontal", 11))
sketch3.addConstraint(Sketcher.Constraint("Vertical", 12))
sketch3.addConstraint(Sketcher.Constraint("Horizontal", 13))
sketch3.addConstraint(Sketcher.Constraint("Vertical", 14))
sketch3.addConstraint(Sketcher.Constraint("Horizontal", 15))
sketch3.addConstraint(Sketcher.Constraint("Vertical", 16))
sketch3.addConstraint(Sketcher.Constraint("Horizontal", 17))
sketch3.addConstraint(Sketcher.Constraint("Vertical", 18))
sketch3.addConstraint(Sketcher.Constraint("Horizontal", 19))
sketch3.addConstraint(Sketcher.Constraint("Vertical", 20))
sketch3.addConstraint(Sketcher.Constraint("Horizontal", 21))
sketch3.addConstraint(Sketcher.Constraint("Vertical", 22))
sketch3.addConstraint(Sketcher.Constraint("Horizontal", 23))
sketch3.addConstraint(Sketcher.Constraint("Vertical", 24))
sketch3.addConstraint(Sketcher.Constraint("Horizontal", 25))
sketch3.addConstraint(Sketcher.Constraint("Vertical", 26))
sketch3.addConstraint(Sketcher.Constraint("Horizontal", 27))
sketch3.addConstraint(Sketcher.Constraint("Vertical", 28))
sketch3.addConstraint(Sketcher.Constraint("Horizontal", 29))
sketch3.addConstraint(Sketcher.Constraint("Vertical", 30))
sketch3.addConstraint(Sketcher.Constraint("Horizontal", 31))
sketch3.addConstraint(Sketcher.Constraint("Vertical", 32))
sketch3.addConstraint(Sketcher.Constraint("Horizontal", 33))
sketch3.addConstraint(Sketcher.Constraint("Vertical", 34))
sketch3.addConstraint(Sketcher.Constraint("Horizontal", 35))
sketch3.addConstraint(Sketcher.Constraint("Vertical", 36))
sketch3.addConstraint(Sketcher.Constraint("Horizontal", 37))
sketch3.addConstraint(Sketcher.Constraint("Vertical", 38))
sketch3.addConstraint(Sketcher.Constraint("Horizontal", 39))
sketch3.addConstraint(Sketcher.Constraint("Vertical", 40))
sketch3.addConstraint(Sketcher.Constraint("Horizontal", 41))
sketch3.addConstraint(Sketcher.Constraint("Vertical", 42))
sketch3.addConstraint(Sketcher.Constraint("Horizontal", 43))
sketch3.addConstraint(Sketcher.Constraint("Horizontal", 44))
sketch3.addConstraint(Sketcher.Constraint("Vertical", 45))
sketch3.addConstraint(Sketcher.Constraint("Horizontal", 46))
sketch3.addConstraint(Sketcher.Constraint("Vertical", 47))
sketch3.addConstraint(Sketcher.Constraint("Horizontal", 48))
sketch3.addConstraint(Sketcher.Constraint("Vertical", 49))
sketch3.addConstraint(Sketcher.Constraint("Horizontal", 50))
sketch3.addConstraint(Sketcher.Constraint("Vertical", 51))
sketch3.addConstraint(Sketcher.Constraint("Horizontal", 52))
sketch3.addConstraint(Sketcher.Constraint("Vertical", 53))
sketch3.addConstraint(Sketcher.Constraint("Horizontal", 54))
sketch3.addConstraint(Sketcher.Constraint("Vertical", 55))
sketch3.addConstraint(Sketcher.Constraint("Horizontal", 56))
sketch3.addConstraint(Sketcher.Constraint("Vertical", 57))
sketch3.addConstraint(Sketcher.Constraint("Horizontal", 58))
sketch3.addConstraint(Sketcher.Constraint("Vertical", 59))
sketch3.addConstraint(Sketcher.Constraint("Symmetric", 1, 2, 4, 2, -1, 1))
sketch3.addConstraint(Sketcher.Constraint("Symmetric", 51, 2, 52, 2, -1, 1))
sketch3.addConstraint(Sketcher.Constraint("Symmetric", 47, 2, 56, 2, -1, 1))
sketch3.addConstraint(Sketcher.Constraint("Symmetric", 0, 2, 5, 2, -2))
sketch3.addConstraint(Sketcher.Constraint("Symmetric", 23, 2, 26, 2, -2))
sketch3.addConstraint(Sketcher.Constraint("Symmetric", 21, 2, 28, 2, -2))
sketch3.addConstraint(Sketcher.Constraint("Symmetric", 19, 2, 30, 2, -2))
sketch3.addConstraint(Sketcher.Constraint("Symmetric", 17, 2, 32, 2, -2))
sketch3.addConstraint(Sketcher.Constraint("Symmetric", 15, 2, 34, 2, -2))
sketch3.addConstraint(Sketcher.Constraint("Symmetric", 13, 2, 36, 2, -2))
sketch3.addConstraint(Sketcher.Constraint("Symmetric", 11, 2, 38, 2, -2))
sketch3.addConstraint(Sketcher.Constraint("Symmetric", 9, 2, 40, 2, -2))
sketch3.addConstraint(Sketcher.Constraint("Symmetric", 7, 2, 42, 2, -2))
sketch3.addConstraint(Sketcher.Constraint("Symmetric", 49, 2, 54, 2, -2))
sketch3.addConstraint(Sketcher.Constraint("Symmetric", 45, 2, 58, 2, -2))
sketch3.addConstraint(Sketcher.Constraint("PointOnObject", 44, 2, -1))
sketch3.addConstraint(Sketcher.Constraint("PointOnObject", 48, 2, -1))
sketch3.addConstraint(Sketcher.Constraint("Horizontal", 46, 2, 49, 2))
sketch3.addConstraint(Sketcher.Constraint("Vertical", 4, 2, 7, 2))
sketch3.addConstraint(Sketcher.Constraint("Vertical", 6, 2, 9, 2))
sketch3.addConstraint(Sketcher.Constraint("Vertical", 8, 2, 11, 2))
sketch3.addConstraint(Sketcher.Constraint("Vertical", 10, 2, 13, 2))
sketch3.addConstraint(Sketcher.Constraint("Vertical", 12, 2, 15, 2))
sketch3.addConstraint(Sketcher.Constraint("Vertical", 14, 2, 17, 2))
sketch3.addConstraint(Sketcher.Constraint("Vertical", 16, 2, 19, 2))
sketch3.addConstraint(Sketcher.Constraint("Vertical", 18, 2, 21, 2))
sketch3.addConstraint(Sketcher.Constraint("Vertical", 20, 2, 23, 2))
sketch3.addConstraint(Sketcher.Constraint("Equal", 46, 48))
sketch3.addConstraint(Sketcher.Constraint("Equal", 58, 0))
sketch3.addConstraint(Sketcher.Constraint("Equal", 6, 8))
sketch3.addConstraint(Sketcher.Constraint("Equal", 8, 10))
sketch3.addConstraint(Sketcher.Constraint("Equal", 10, 12))
sketch3.addConstraint(Sketcher.Constraint("Equal", 12, 14))
sketch3.addConstraint(Sketcher.Constraint("Equal", 14, 16))
sketch3.addConstraint(Sketcher.Constraint("Equal", 16, 18))
sketch3.addConstraint(Sketcher.Constraint("Equal", 18, 20))
sketch3.addConstraint(Sketcher.Constraint("Equal", 20, 22))
sketch3.addConstraint(Sketcher.Constraint("Equal", 4, 24))
sketch3.addConstraint(Sketcher.Constraint("DistanceX", 1, 1, 1, 2, Q("4 mm")))
sketch3.addConstraint(Sketcher.Constraint("DistanceX", 3, 1, 3, 2, Q("200 mm")))
sketch3.addConstraint(Sketcher.Constraint("DistanceX", 44, 2, 44, 1, Q("25 mm")))
sketch3.addConstraint(Sketcher.Constraint("DistanceY", 2, 2, 2, 1, Q("10 mm")))
sketch3.addConstraint(Sketcher.Constraint("DistanceY", 45, 1, 45, 2, Q("5 mm")))
sketch3.addConstraint(Sketcher.Constraint("DistanceX", 47, 2, 48, 2, Q("25 mm")))
sketch3.addConstraint(Sketcher.Constraint("DistanceX", 51, 2, 52, 2, Q("25 mm")))
pad3 = body3.newObject("PartDesign::Pad", "Pad002")
pad3.Profile = sketch3
pad3.Length = 4
body4 = doc.addObject("PartDesign::Body", "Body003")
doc.recompute()

mirroring = doc.addObject("Part::Mirroring", "Mirroring")
mirroring.Source = body2
mirroring.Base = V(0, 0, 0)
mirroring.Normal = V(0, -1, 0)
body4.BaseFeature = mirroring
doc.recompute()
body5 = doc.addObject("PartDesign::Body", "Body004")
doc.recompute()

mirroring2 = doc.addObject("Part::Mirroring", "Mirroring001")
mirroring2.Source = body3
mirroring2.Base = V(0, 0, 0)
mirroring2.Normal = V(1, 0, 0)
body5.BaseFeature = mirroring2
doc.recompute()
mirroring.Visibility = False
mirroring2.Visibility = False

doc.recompute()
